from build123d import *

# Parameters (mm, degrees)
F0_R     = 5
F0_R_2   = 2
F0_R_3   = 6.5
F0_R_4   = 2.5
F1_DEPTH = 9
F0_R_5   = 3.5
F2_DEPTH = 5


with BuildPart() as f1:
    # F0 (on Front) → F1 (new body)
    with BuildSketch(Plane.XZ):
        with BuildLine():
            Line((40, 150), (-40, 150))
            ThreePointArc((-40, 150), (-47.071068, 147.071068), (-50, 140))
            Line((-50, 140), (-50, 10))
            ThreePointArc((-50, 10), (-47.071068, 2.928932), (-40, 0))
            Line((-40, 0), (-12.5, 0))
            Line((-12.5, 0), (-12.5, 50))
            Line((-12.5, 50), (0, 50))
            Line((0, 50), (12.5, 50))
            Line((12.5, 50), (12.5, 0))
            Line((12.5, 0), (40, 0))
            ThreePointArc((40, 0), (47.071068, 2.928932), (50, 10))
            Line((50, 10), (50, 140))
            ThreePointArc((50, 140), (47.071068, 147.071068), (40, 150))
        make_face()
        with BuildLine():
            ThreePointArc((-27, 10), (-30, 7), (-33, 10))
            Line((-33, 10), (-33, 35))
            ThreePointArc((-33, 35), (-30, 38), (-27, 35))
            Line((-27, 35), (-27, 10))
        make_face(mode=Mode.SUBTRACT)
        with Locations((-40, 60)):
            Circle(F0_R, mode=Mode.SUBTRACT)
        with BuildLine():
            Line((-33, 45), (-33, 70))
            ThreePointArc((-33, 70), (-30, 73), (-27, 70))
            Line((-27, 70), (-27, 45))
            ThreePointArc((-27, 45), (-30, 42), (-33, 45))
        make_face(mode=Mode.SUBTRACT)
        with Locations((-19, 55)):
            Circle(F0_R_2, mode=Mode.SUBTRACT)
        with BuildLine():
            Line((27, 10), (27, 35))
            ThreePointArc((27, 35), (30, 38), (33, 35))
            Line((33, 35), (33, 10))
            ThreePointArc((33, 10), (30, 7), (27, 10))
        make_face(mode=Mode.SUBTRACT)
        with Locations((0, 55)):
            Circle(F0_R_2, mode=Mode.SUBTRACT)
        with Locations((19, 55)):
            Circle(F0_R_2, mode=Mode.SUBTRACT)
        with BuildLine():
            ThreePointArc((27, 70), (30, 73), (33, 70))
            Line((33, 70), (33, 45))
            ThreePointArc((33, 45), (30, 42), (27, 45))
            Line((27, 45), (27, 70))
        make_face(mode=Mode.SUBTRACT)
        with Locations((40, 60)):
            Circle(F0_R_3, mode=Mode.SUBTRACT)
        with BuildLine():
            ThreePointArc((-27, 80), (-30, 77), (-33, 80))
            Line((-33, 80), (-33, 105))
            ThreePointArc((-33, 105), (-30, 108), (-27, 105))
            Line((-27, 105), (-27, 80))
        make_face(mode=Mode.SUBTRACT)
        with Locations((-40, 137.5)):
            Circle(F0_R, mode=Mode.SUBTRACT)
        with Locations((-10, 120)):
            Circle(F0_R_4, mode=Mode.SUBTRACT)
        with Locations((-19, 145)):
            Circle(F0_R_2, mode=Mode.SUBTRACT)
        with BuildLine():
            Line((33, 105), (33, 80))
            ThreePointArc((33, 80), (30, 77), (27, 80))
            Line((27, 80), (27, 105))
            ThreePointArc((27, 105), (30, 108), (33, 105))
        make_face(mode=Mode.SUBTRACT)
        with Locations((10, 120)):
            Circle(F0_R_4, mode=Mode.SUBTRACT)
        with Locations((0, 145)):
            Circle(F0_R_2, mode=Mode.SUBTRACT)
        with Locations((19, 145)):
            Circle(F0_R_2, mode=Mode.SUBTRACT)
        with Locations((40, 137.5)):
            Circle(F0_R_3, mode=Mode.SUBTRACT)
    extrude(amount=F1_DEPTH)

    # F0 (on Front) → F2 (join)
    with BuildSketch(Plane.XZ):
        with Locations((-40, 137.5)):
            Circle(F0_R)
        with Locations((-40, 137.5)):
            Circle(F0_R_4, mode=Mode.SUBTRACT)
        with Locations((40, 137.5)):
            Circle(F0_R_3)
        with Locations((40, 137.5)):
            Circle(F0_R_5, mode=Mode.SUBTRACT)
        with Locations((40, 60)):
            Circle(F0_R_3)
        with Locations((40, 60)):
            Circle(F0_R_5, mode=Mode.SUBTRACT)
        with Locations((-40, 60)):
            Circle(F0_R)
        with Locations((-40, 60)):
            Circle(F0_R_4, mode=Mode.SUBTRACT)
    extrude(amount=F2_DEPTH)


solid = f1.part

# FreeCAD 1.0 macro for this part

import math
import FreeCAD as App
import Part
import Sketcher
Q = App.Units.Quantity

doc = App.newDocument("Part")
body = doc.addObject("PartDesign::Body", "Body")

# Sketch on XZ plane
sketch1 = body.newObject("Sketcher::SketchObject", "Sketch")
sketch1.AttachmentSupport = (doc.getObject("XZ_Plane"), [""])
sketch1.MapMode = "FlatFace"
sketch1.addGeometry(Part.LineSegment(App.Vector(40, 150, 0), App.Vector(-40, 150, 0)), False)
sketch1.addGeometry(Part.ArcOfCircle(Part.Circle(App.Vector(-40.000001, 140.000001, 0), App.Vector(0, 0, 1), 9.999999), math.radians(89.999996), math.radians(180.000004)), False)
sketch1.addGeometry(Part.LineSegment(App.Vector(-50, 140, 0), App.Vector(-50, 10, 0)), False)
sketch1.addGeometry(Part.ArcOfCircle(Part.Circle(App.Vector(-40.000001, 9.999999, 0), App.Vector(0, 0, 1), 9.999999), math.radians(179.999996), math.radians(270.000004)), False)
sketch1.addGeometry(Part.LineSegment(App.Vector(-40, 0, 0), App.Vector(-12.5, 0, 0)), False)
sketch1.addGeometry(Part.LineSegment(App.Vector(-12.5, 0, 0), App.Vector(-12.5, 50, 0)), False)
sketch1.addGeometry(Part.LineSegment(App.Vector(-12.5, 50, 0), App.Vector(12.5, 50, 0)), False)
sketch1.addGeometry(Part.LineSegment(App.Vector(12.5, 50, 0), App.Vector(12.5, 0, 0)), False)
sketch1.addGeometry(Part.LineSegment(App.Vector(12.5, 0, 0), App.Vector(40, 0, 0)), False)
sketch1.addGeometry(Part.ArcOfCircle(Part.Circle(App.Vector(40.000001, 9.999999, 0), App.Vector(0, 0, 1), 9.999999), math.radians(-90.000004), math.radians(0.000004)), False)
sketch1.addGeometry(Part.LineSegment(App.Vector(50, 10, 0), App.Vector(50, 140, 0)), False)
sketch1.addGeometry(Part.ArcOfCircle(Part.Circle(App.Vector(40.000001, 140.000001, 0), App.Vector(0, 0, 1), 9.999999), math.radians(-0.000004), math.radians(90.000004)), False)
sketch1.addGeometry(Part.LineSegment(App.Vector(-27, 35, 0), App.Vector(-27, 10, 0)), False)
sketch1.addGeometry(Part.ArcOfCircle(Part.Circle(App.Vector(-30, 10, 0), App.Vector(0, 0, 1), 3), math.radians(180), math.radians(360)), False)
sketch1.addGeometry(Part.LineSegment(App.Vector(-33, 10, 0), App.Vector(-33, 35, 0)), False)
sketch1.addGeometry(Part.ArcOfCircle(Part.Circle(App.Vector(-30, 35, 0), App.Vector(0, 0, 1), 3), math.radians(0), math.radians(180)), False)
sketch1.addGeometry(Part.ArcOfCircle(Part.Circle(App.Vector(-30, 45, 0), App.Vector(0, 0, 1), 3), math.radians(180), math.radians(360)), False)
sketch1.addGeometry(Part.LineSegment(App.Vector(-33, 45, 0), App.Vector(-33, 70, 0)), False)
sketch1.addGeometry(Part.ArcOfCircle(Part.Circle(App.Vector(-30, 70, 0), App.Vector(0, 0, 1), 3), math.radians(0), math.radians(180)), False)
sketch1.addGeometry(Part.LineSegment(App.Vector(-27, 70, 0), App.Vector(-27, 45, 0)), False)
sketch1.addGeometry(Part.Circle(App.Vector(-40, 60, 0), App.Vector(0, 0, 1), 5), False)
sketch1.addGeometry(Part.Circle(App.Vector(-19, 55, 0), App.Vector(0, 0, 1), 2), False)
sketch1.addGeometry(Part.Circle(App.Vector(0, 55, 0), App.Vector(0, 0, 1), 2), False)
sketch1.addGeometry(Part.ArcOfCircle(Part.Circle(App.Vector(30, 10, 0), App.Vector(0, 0, 1), 3), math.radians(180), math.radians(360)), False)
sketch1.addGeometry(Part.LineSegment(App.Vector(27, 10, 0), App.Vector(27, 35, 0)), False)
sketch1.addGeometry(Part.ArcOfCircle(Part.Circle(App.Vector(30, 35, 0), App.Vector(0, 0, 1), 3), math.radians(0), math.radians(180)), False)
sketch1.addGeometry(Part.LineSegment(App.Vector(33, 35, 0), App.Vector(33, 10, 0)), False)
sketch1.addGeometry(Part.Circle(App.Vector(19, 55, 0), App.Vector(0, 0, 1), 2), False)
sketch1.addGeometry(Part.LineSegment(App.Vector(27, 45, 0), App.Vector(27, 70, 0)), False)
sketch1.addGeometry(Part.ArcOfCircle(Part.Circle(App.Vector(30, 70, 0), App.Vector(0, 0, 1), 3), math.radians(0), math.radians(180)), False)
sketch1.addGeometry(Part.LineSegment(App.Vector(33, 70, 0), App.Vector(33, 45, 0)), False)
sketch1.addGeometry(Part.ArcOfCircle(Part.Circle(App.Vector(30, 45, 0), App.Vector(0, 0, 1), 3), math.radians(180), math.radians(360)), False)
sketch1.addGeometry(Part.Circle(App.Vector(40, 60, 0), App.Vector(0, 0, 1), 6.5), False)
sketch1.addGeometry(Part.LineSegment(App.Vector(-27, 105, 0), App.Vector(-27, 80, 0)), False)
sketch1.addGeometry(Part.ArcOfCircle(Part.Circle(App.Vector(-30, 80, 0), App.Vector(0, 0, 1), 3), math.radians(180), math.radians(360)), False)
sketch1.addGeometry(Part.LineSegment(App.Vector(-33, 80, 0), App.Vector(-33, 105, 0)), False)
sketch1.addGeometry(Part.ArcOfCircle(Part.Circle(App.Vector(-30, 105, 0), App.Vector(0, 0, 1), 3), math.radians(0), math.radians(180)), False)
sketch1.addGeometry(Part.Circle(App.Vector(-40, 137.5, 0), App.Vector(0, 0, 1), 5), False)
sketch1.addGeometry(Part.Circle(App.Vector(-10, 120, 0), App.Vector(0, 0, 1), 2.5), False)
sketch1.addGeometry(Part.Circle(App.Vector(-19, 145, 0), App.Vector(0, 0, 1), 2), False)
sketch1.addGeometry(Part.Circle(App.Vector(0, 145, 0), App.Vector(0, 0, 1), 2), False)
sketch1.addGeometry(Part.ArcOfCircle(Part.Circle(App.Vector(30, 105, 0), App.Vector(0, 0, 1), 3), math.radians(0), math.radians(180)), False)
sketch1.addGeometry(Part.LineSegment(App.Vector(33, 105, 0), App.Vector(33, 80, 0)), False)
sketch1.addGeometry(Part.ArcOfCircle(Part.Circle(App.Vector(30, 80, 0), App.Vector(0, 0, 1), 3), math.radians(180), math.radians(360)), False)
sketch1.addGeometry(Part.LineSegment(App.Vector(27, 80, 0), App.Vector(27, 105, 0)), False)
sketch1.addGeometry(Part.Circle(App.Vector(10, 120, 0), App.Vector(0, 0, 1), 2.5), False)
sketch1.addGeometry(Part.Circle(App.Vector(19, 145, 0), App.Vector(0, 0, 1), 2), False)
sketch1.addGeometry(Part.Circle(App.Vector(40, 137.5, 0), App.Vector(0, 0, 1), 6.5), False)
sketch1.addConstraint(Sketcher.Constraint("Tangent", 0, 2, 1, 1))
sketch1.addConstraint(Sketcher.Constraint("Tangent", 1, 2, 2, 1))
sketch1.addConstraint(Sketcher.Constraint("Tangent", 2, 2, 3, 1))
sketch1.addConstraint(Sketcher.Constraint("Tangent", 3, 2, 4, 1))
sketch1.addConstraint(Sketcher.Constraint("Coincident", 4, 2, 5, 1))
sketch1.addConstraint(Sketcher.Constraint("Coincident", 5, 2, 6, 1))
sketch1.addConstraint(Sketcher.Constraint("Coincident", 6, 2, 7, 1))
sketch1.addConstraint(Sketcher.Constraint("Coincident", 7, 2, 8, 1))
sketch1.addConstraint(Sketcher.Constraint("Tangent", 8, 2, 9, 1))
sketch1.addConstraint(Sketcher.Constraint("Tangent", 9, 2, 10, 1))
sketch1.addConstraint(Sketcher.Constraint("Tangent", 10, 2, 11, 1))
sketch1.addConstraint(Sketcher.Constraint("Tangent", 11, 2, 0, 1))
sketch1.addConstraint(Sketcher.Constraint("Tangent", 12, 2, 13, 2))
sketch1.addConstraint(Sketcher.Constraint("Tangent", 13, 1, 14, 1))
sketch1.addConstraint(Sketcher.Constraint("Tangent", 14, 2, 15, 2))
sketch1.addConstraint(Sketcher.Constraint("Tangent", 15, 1, 12, 1))
sketch1.addConstraint(Sketcher.Constraint("Tangent", 16, 1, 17, 1))
sketch1.addConstraint(Sketcher.Constraint("Tangent", 17, 2, 18, 2))
sketch1.addConstraint(Sketcher.Constraint("Tangent", 18, 1, 19, 1))
sketch1.addConstraint(Sketcher.Constraint("Tangent", 19, 2, 16, 2))
sketch1.addConstraint(Sketcher.Constraint("Tangent", 23, 1, 24, 1))
sketch1.addConstraint(Sketcher.Constraint("Tangent", 24, 2, 25, 2))
sketch1.addConstraint(Sketcher.Constraint("Tangent", 25, 1, 26, 1))
sketch1.addConstraint(Sketcher.Constraint("Tangent", 26, 2, 23, 2))
sketch1.addConstraint(Sketcher.Constraint("Tangent", 28, 2, 29, 2))
sketch1.addConstraint(Sketcher.Constraint("Tangent", 29, 1, 30, 1))
sketch1.addConstraint(Sketcher.Constraint("Tangent", 30, 2, 31, 2))
sketch1.addConstraint(Sketcher.Constraint("Tangent", 31, 1, 28, 1))
sketch1.addConstraint(Sketcher.Constraint("Tangent", 33, 2, 34, 2))
sketch1.addConstraint(Sketcher.Constraint("Tangent", 34, 1, 35, 1))
sketch1.addConstraint(Sketcher.Constraint("Tangent", 35, 2, 36, 2))
sketch1.addConstraint(Sketcher.Constraint("Tangent", 36, 1, 33, 1))
sketch1.addConstraint(Sketcher.Constraint("Tangent", 41, 1, 42, 1))
sketch1.addConstraint(Sketcher.Constraint("Tangent", 42, 2, 43, 2))
sketch1.addConstraint(Sketcher.Constraint("Tangent", 43, 1, 44, 1))
sketch1.addConstraint(Sketcher.Constraint("Tangent", 44, 2, 41, 2))
sketch1.addConstraint(Sketcher.Constraint("Horizontal", 0))
sketch1.addConstraint(Sketcher.Constraint("Vertical", 2))
sketch1.addConstraint(Sketcher.Constraint("Horizontal", 4))
sketch1.addConstraint(Sketcher.Constraint("Vertical", 5))
sketch1.addConstraint(Sketcher.Constraint("Horizontal", 6))
sketch1.addConstraint(Sketcher.Constraint("Vertical", 7))
sketch1.addConstraint(Sketcher.Constraint("Horizontal", 8))
sketch1.addConstraint(Sketcher.Constraint("Vertical", 10))
sketch1.addConstraint(Sketcher.Constraint("Vertical", 12))
sketch1.addConstraint(Sketcher.Constraint("Vertical", 14))
sketch1.addConstraint(Sketcher.Constraint("Vertical", 17))
sketch1.addConstraint(Sketcher.Constraint("Vertical", 19))
sketch1.addConstraint(Sketcher.Constraint("Vertical", 24))
sketch1.addConstraint(Sketcher.Constraint("Vertical", 26))
sketch1.addConstraint(Sketcher.Constraint("Vertical", 28))
sketch1.addConstraint(Sketcher.Constraint("Vertical", 30))
sketch1.addConstraint(Sketcher.Constraint("Vertical", 33))
sketch1.addConstraint(Sketcher.Constraint("Vertical", 35))
sketch1.addConstraint(Sketcher.Constraint("Vertical", 42))
sketch1.addConstraint(Sketcher.Constraint("Vertical", 44))
sketch1.addConstraint(Sketcher.Constraint("Equal", 1, 3))
sketch1.addConstraint(Sketcher.Constraint("Equal", 3, 9))
sketch1.addConstraint(Sketcher.Constraint("Equal", 9, 11))
sketch1.addConstraint(Sketcher.Constraint("Equal", 15, 16))
sketch1.addConstraint(Sketcher.Constraint("Equal", 21, 22))
sketch1.addConstraint(Sketcher.Constraint("Equal", 18, 23))
sketch1.addConstraint(Sketcher.Constraint("Equal", 22, 27))
sketch1.addConstraint(Sketcher.Constraint("Equal", 25, 29))
sketch1.addConstraint(Sketcher.Constraint("Equal", 31, 34))
sketch1.addConstraint(Sketcher.Constraint("Equal", 20, 37))
sketch1.addConstraint(Sketcher.Constraint("Equal", 27, 39))
sketch1.addConstraint(Sketcher.Constraint("Equal", 39, 40))
sketch1.addConstraint(Sketcher.Constraint("Equal", 36, 41))
sketch1.addConstraint(Sketcher.Constraint("Equal", 38, 45))
sketch1.addConstraint(Sketcher.Constraint("Equal", 40, 46))
sketch1.addConstraint(Sketcher.Constraint("Equal", 32, 47))
sketch1.addConstraint(Sketcher.Constraint("Symmetric", 4, 2, 7, 2, -1, 1))
sketch1.addConstraint(Sketcher.Constraint("Symmetric", 3, 3, 9, 3, -2))
sketch1.addConstraint(Sketcher.Constraint("Symmetric", 13, 3, 23, 3, -2))
sketch1.addConstraint(Sketcher.Constraint("Symmetric", 21, 3, 27, 3, -2))
sketch1.addConstraint(Sketcher.Constraint("Symmetric", 18, 3, 29, 3, -2))
sketch1.addConstraint(Sketcher.Constraint("Symmetric", 20, 3, 32, 3, -2))
sketch1.addConstraint(Sketcher.Constraint("Symmetric", 36, 3, 41, 3, -2))
sketch1.addConstraint(Sketcher.Constraint("Symmetric", 38, 3, 45, 3, -2))
sketch1.addConstraint(Sketcher.Constraint("Symmetric", 39, 3, 46, 3, -2))
sketch1.addConstraint(Sketcher.Constraint("Symmetric", 37, 3, 47, 3, -2))
sketch1.addConstraint(Sketcher.Constraint("PointOnObject", 22, 3, -2))
sketch1.addConstraint(Sketcher.Constraint("PointOnObject", 40, 3, -2))
sketch1.addConstraint(Sketcher.Constraint("Horizontal", 9, 3, 13, 3))
sketch1.addConstraint(Sketcher.Constraint("Horizontal", 21, 3, 22, 3))
sketch1.addConstraint(Sketcher.Constraint("Horizontal", 15, 3, 25, 3))
sketch1.addConstraint(Sketcher.Constraint("Horizontal", 16, 3, 31, 3))
sketch1.addConstraint(Sketcher.Constraint("Horizontal", 39, 3, 40, 3))
sketch1.addConstraint(Sketcher.Constraint("Horizontal", 34, 3, 43, 3))
sketch1.addConstraint(Sketcher.Constraint("Vertical", 15, 3, 16, 3))
sketch1.addConstraint(Sketcher.Constraint("Vertical", 3, 3, 20, 3))
sketch1.addConstraint(Sketcher.Constraint("Vertical", 18, 3, 34, 3))
sketch1.addConstraint(Sketcher.Constraint("Vertical", 20, 3, 37, 3))
sketch1.addConstraint(Sketcher.Constraint("Vertical", 21, 3, 39, 3))
sketch1.addConstraint(Sketcher.Constraint("Equal", 6, 12))
sketch1.addConstraint(Sketcher.Constraint("Equal", 14, 17))
sketch1.addConstraint(Sketcher.Constraint("Equal", 30, 33))
sketch1.addConstraint(Sketcher.Constraint("Diameter", 20, Q("10 mm")))
sketch1.addConstraint(Sketcher.Constraint("Diameter", 21, Q("4 mm")))
sketch1.addConstraint(Sketcher.Constraint("Diameter", 32, Q("13 mm")))
sketch1.addConstraint(Sketcher.Constraint("Diameter", 38, Q("5 mm")))
sketch1.addConstraint(Sketcher.Constraint("Radius", 1, Q("9.999999 mm")))
sketch1.addConstraint(Sketcher.Constraint("Radius", 13, Q("3 mm")))
sketch1.addConstraint(Sketcher.Constraint("DistanceX", 0, 2, 0, 1, Q("80 mm")))
sketch1.addConstraint(Sketcher.Constraint("DistanceX", 6, 1, 6, 2, Q("25 mm")))
sketch1.addConstraint(Sketcher.Constraint("DistanceY", 2, 2, 2, 1, Q("130 mm")))
sketch1.addConstraint(Sketcher.Constraint("DistanceY", 5, 1, 5, 2, Q("50 mm")))
sketch1.addConstraint(Sketcher.Constraint("DistanceX", 13, 3, -1, 1, Q("30 mm")))
sketch1.addConstraint(Sketcher.Constraint("DistanceY", -1, 1, 16, 3, Q("45 mm")))
sketch1.addConstraint(Sketcher.Constraint("DistanceY", -1, 1, 20, 3, Q("60 mm")))
sketch1.addConstraint(Sketcher.Constraint("DistanceX", 21, 3, -1, 1, Q("19 mm")))
sketch1.addConstraint(Sketcher.Constraint("DistanceY", -1, 1, 21, 3, Q("55 mm")))
sketch1.addConstraint(Sketcher.Constraint("DistanceY", -1, 1, 34, 3, Q("80 mm")))
sketch1.addConstraint(Sketcher.Constraint("DistanceX", 38, 3, -1, 1, Q("10 mm")))
sketch1.addConstraint(Sketcher.Constraint("DistanceY", -1, 1, 38, 3, Q("120 mm")))
sketch1.addConstraint(Sketcher.Constraint("DistanceY", -1, 1, 39, 3, Q("145 mm")))
sketch1.addConstraint(Sketcher.Constraint("DistanceY", -1, 1, 37, 3, Q("137.5 mm")))
pad1 = body.newObject("PartDesign::Pad", "Pad")
pad1.Profile = sketch1
pad1.Length = 9

# Sketch on XZ plane
sketch2 = body.newObject("Sketcher::SketchObject", "Sketch001")
sketch2.AttachmentSupport = (doc.getObject("XZ_Plane"), [""])
sketch2.MapMode = "FlatFace"
sketch2.addGeometry(Part.Circle(App.Vector(-40, 137.5, 0), App.Vector(0, 0, 1), 5), False)
sketch2.addGeometry(Part.Circle(App.Vector(-40, 137.5, 0), App.Vector(0, 0, 1), 2.5), False)
sketch2.addGeometry(Part.Circle(App.Vector(40, 137.5, 0), App.Vector(0, 0, 1), 6.5), False)
sketch2.addGeometry(Part.Circle(App.Vector(40, 137.5, 0), App.Vector(0, 0, 1), 3.5), False)
sketch2.addGeometry(Part.Circle(App.Vector(40, 60, 0), App.Vector(0, 0, 1), 6.5), False)
sketch2.addGeometry(Part.Circle(App.Vector(40, 60, 0), App.Vector(0, 0, 1), 3.5), False)
sketch2.addGeometry(Part.Circle(App.Vector(-40, 60, 0), App.Vector(0, 0, 1), 5), False)
sketch2.addGeometry(Part.Circle(App.Vector(-40, 60, 0), App.Vector(0, 0, 1), 2.5), False)
sketch2.addConstraint(Sketcher.Constraint("Coincident", 1, 3, 0, 3))
sketch2.addConstraint(Sketcher.Constraint("Coincident", 3, 3, 2, 3))
sketch2.addConstraint(Sketcher.Constraint("Coincident", 5, 3, 4, 3))
sketch2.addConstraint(Sketcher.Constraint("Coincident", 7, 3, 6, 3))
sketch2.addConstraint(Sketcher.Constraint("Equal", 2, 4))
sketch2.addConstraint(Sketcher.Constraint("Equal", 3, 5))
sketch2.addConstraint(Sketcher.Constraint("Equal", 0, 6))
sketch2.addConstraint(Sketcher.Constraint("Equal", 1, 7))
sketch2.addConstraint(Sketcher.Constraint("Symmetric", 0, 3, 2, 3, -2))
sketch2.addConstraint(Sketcher.Constraint("Symmetric", 4, 3, 6, 3, -2))
sketch2.addConstraint(Sketcher.Constraint("Vertical", 3, 3, 4, 3))
sketch2.addConstraint(Sketcher.Constraint("Diameter", 0, Q("10 mm")))
sketch2.addConstraint(Sketcher.Constraint("Diameter", 1, Q("5 mm")))
sketch2.addConstraint(Sketcher.Constraint("Diameter", 2, Q("13 mm")))
sketch2.addConstraint(Sketcher.Constraint("Diameter", 3, Q("7 mm")))
sketch2.addConstraint(Sketcher.Constraint("DistanceX", 0, 3, -1, 1, Q("40 mm")))
sketch2.addConstraint(Sketcher.Constraint("DistanceY", -1, 1, 4, 3, Q("60 mm")))
sketch2.addConstraint(Sketcher.Constraint("DistanceY", -1, 1, 0, 3, Q("137.5 mm")))
pad2 = body.newObject("PartDesign::Pad", "Pad001")
pad2.Profile = sketch2
pad2.Length = 5

doc.recompute()
